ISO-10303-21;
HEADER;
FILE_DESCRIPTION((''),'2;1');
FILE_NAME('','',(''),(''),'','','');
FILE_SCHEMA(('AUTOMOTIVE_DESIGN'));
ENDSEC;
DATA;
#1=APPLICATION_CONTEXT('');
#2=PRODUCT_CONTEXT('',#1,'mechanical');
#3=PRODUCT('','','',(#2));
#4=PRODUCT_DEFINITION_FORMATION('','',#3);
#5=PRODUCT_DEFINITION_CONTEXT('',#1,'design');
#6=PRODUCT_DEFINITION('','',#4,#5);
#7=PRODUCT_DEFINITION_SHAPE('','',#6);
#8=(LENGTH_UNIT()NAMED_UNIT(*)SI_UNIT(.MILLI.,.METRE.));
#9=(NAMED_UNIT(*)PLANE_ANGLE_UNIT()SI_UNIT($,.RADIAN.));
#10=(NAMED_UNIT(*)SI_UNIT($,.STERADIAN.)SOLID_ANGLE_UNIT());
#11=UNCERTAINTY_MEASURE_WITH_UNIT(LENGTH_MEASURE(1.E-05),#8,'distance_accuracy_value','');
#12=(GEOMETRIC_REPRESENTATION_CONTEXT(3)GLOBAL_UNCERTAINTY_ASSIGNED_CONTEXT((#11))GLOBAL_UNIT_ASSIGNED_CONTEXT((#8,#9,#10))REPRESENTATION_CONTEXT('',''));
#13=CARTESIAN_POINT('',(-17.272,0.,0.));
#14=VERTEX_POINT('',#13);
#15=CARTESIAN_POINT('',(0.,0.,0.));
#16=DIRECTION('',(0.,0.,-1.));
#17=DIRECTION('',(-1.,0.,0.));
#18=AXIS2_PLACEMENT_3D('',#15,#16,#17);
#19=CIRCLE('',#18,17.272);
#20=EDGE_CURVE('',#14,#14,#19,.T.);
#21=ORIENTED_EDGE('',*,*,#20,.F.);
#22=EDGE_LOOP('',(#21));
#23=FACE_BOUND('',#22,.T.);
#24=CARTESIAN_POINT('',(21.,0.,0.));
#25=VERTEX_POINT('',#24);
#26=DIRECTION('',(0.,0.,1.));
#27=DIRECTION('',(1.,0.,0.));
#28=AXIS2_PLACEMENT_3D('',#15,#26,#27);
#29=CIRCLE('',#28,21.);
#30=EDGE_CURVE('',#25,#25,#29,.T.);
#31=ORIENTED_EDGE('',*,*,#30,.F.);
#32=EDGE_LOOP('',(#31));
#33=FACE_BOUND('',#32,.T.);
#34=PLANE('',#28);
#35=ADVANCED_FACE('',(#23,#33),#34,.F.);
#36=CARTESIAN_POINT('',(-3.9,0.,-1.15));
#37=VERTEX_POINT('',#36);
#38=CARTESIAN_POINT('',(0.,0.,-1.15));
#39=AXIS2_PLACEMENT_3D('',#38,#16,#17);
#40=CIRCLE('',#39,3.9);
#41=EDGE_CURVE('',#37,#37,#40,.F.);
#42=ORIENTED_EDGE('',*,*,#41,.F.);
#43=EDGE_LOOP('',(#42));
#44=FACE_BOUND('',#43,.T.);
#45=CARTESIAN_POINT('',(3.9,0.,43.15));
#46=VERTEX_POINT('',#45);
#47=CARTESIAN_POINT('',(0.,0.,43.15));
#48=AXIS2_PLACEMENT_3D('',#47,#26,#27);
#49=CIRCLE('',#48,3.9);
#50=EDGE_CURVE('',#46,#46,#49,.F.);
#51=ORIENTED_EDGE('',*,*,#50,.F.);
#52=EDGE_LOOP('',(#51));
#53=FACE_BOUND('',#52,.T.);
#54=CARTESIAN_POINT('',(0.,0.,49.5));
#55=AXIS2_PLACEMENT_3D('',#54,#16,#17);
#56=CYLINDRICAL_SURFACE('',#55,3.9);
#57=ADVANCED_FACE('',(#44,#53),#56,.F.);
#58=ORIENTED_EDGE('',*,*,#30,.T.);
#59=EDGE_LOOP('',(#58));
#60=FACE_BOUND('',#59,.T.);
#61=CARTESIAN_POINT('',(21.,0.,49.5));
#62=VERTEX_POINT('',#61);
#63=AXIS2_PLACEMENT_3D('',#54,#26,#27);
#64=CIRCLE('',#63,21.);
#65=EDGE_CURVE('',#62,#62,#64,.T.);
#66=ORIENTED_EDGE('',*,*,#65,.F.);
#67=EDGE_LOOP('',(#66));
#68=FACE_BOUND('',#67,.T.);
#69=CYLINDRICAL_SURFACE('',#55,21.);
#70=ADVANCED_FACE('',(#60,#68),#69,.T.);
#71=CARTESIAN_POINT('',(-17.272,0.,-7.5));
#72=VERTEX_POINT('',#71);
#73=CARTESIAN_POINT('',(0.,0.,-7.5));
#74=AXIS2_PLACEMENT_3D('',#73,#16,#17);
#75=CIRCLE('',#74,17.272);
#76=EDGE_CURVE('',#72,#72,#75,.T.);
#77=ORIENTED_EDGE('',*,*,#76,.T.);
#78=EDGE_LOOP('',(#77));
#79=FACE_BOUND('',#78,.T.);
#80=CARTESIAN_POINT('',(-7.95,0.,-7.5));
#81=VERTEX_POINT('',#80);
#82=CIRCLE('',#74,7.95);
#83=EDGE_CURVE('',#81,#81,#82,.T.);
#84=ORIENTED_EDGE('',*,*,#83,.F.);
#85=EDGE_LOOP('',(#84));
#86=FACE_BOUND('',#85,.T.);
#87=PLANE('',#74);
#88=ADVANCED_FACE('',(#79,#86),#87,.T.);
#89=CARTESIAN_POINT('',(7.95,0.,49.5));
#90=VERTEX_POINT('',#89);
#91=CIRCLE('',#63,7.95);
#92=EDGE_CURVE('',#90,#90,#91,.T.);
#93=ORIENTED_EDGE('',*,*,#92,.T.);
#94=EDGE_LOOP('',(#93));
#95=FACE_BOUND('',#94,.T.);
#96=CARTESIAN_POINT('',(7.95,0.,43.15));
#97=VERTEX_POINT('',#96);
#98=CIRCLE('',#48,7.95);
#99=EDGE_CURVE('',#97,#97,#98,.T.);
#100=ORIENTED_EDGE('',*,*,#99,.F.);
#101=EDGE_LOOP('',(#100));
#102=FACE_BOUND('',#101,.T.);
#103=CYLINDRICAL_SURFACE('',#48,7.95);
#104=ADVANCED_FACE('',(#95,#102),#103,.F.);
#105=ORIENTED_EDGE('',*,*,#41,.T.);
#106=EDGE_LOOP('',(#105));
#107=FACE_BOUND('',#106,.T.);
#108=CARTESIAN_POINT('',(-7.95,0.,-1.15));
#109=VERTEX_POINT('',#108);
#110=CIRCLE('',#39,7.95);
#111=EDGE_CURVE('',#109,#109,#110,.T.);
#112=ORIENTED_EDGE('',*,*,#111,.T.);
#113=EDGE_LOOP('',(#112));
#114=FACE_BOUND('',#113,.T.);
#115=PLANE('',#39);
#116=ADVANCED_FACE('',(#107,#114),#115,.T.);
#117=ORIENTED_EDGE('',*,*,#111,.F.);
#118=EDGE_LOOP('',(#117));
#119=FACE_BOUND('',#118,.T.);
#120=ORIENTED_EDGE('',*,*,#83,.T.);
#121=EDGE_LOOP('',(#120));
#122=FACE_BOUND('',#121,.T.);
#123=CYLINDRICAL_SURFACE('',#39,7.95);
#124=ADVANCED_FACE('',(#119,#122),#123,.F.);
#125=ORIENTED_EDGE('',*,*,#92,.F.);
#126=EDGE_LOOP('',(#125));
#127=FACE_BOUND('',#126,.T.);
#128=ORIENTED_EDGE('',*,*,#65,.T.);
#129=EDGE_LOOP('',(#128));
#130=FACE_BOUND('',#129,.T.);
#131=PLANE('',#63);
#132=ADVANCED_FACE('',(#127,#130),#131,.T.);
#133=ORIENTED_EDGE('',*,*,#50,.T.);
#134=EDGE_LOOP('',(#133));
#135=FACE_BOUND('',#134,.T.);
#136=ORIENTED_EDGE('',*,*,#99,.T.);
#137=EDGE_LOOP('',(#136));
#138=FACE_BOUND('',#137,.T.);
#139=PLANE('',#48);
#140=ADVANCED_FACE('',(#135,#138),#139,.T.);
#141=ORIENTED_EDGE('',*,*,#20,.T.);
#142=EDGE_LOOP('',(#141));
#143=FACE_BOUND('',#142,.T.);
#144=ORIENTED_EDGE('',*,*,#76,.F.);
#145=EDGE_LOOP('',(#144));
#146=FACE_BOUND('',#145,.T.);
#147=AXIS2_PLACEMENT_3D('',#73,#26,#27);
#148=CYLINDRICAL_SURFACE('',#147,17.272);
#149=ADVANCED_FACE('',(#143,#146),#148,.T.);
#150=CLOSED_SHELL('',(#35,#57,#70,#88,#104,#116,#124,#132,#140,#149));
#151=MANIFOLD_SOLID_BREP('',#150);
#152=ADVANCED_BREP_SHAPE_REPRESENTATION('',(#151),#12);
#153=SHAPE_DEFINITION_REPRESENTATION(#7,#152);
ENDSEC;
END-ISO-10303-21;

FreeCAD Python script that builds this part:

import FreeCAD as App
import Part
import Sketcher
Q = App.Units.Quantity

doc = App.newDocument("Part")
body = doc.addObject("PartDesign::Body", "Body")

sketch1 = body.newObject("Sketcher::SketchObject", "Sketch")
sketch1.AttachmentSupport = (doc.getObject("XY_Plane"), [""])
sketch1.MapMode = "FlatFace"
sketch1.addGeometry(Part.Circle(App.Vector(0, 0, 0), App.Vector(0, 0, 1), 21), False)
sketch1.addConstraint(Sketcher.Constraint("Coincident", 0, 3, -1, 1))
sketch1.addConstraint(Sketcher.Constraint("Diameter", 0, Q("42 mm")))
pad1 = body.newObject("PartDesign::Pad", "Pad")
pad1.Profile = sketch1
pad1.Length = 49.5

sketch2 = body.newObject("Sketcher::SketchObject", "Sketch001")
sketch2.AttachmentSupport = (doc.getObject("XY_Plane"), [""])
sketch2.MapMode = "FlatFace"
sketch2.addGeometry(Part.Circle(App.Vector(0, 0, 0), App.Vector(0, 0, 1), 3.9), False)
sketch2.addConstraint(Sketcher.Constraint("Coincident", 0, 3, -1, 1))
sketch2.addConstraint(Sketcher.Constraint("Diameter", 0, Q("7.8 mm")))
pocket1 = body.newObject("PartDesign::Pocket", "Pocket")
pocket1.Profile = sketch2
pocket1.Type = "ThroughAll"
pocket1.Reversed = True

sketch3 = body.newObject("Sketcher::SketchObject", "Sketch002")
sketch3.AttachmentSupport = (doc.getObject("XY_Plane"), [""])
sketch3.MapMode = "FlatFace"
sketch3.addGeometry(Part.Circle(App.Vector(0, 0, 0), App.Vector(0, 0, 1), 17.272), False)
sketch3.addConstraint(Sketcher.Constraint("Coincident", 0, 3, -1, 1))
sketch3.addConstraint(Sketcher.Constraint("Diameter", 0, Q("34.544 mm")))
pad2 = body.newObject("PartDesign::Pad", "Pad001")
pad2.Profile = sketch3
pad2.Length = 7.5
pad2.Reversed = True

sketch4 = body.newObject("Sketcher::SketchObject", "Sketch003")
sketch4.AttachmentSupport = (doc.getObject("XY_Plane"), [""])
sketch4.MapMode = "FlatFace"
sketch4.AttachmentOffset = App.Placement(App.Vector(0, 0, -7.5), App.Rotation())
sketch4.addGeometry(Part.Circle(App.Vector(0, 0, 0), App.Vector(0, 0, 1), 3.9), False)
sketch4.addConstraint(Sketcher.Constraint("Coincident", 0, 3, -1, 1))
sketch4.addConstraint(Sketcher.Constraint("Diameter", 0, Q("7.8 mm")))
pocket2 = body.newObject("PartDesign::Pocket", "Pocket001")
pocket2.Profile = sketch4
pocket2.Length = 7.5
pocket2.Reversed = True

sketch5 = body.newObject("Sketcher::SketchObject", "Sketch004")
sketch5.AttachmentSupport = (doc.getObject("XY_Plane"), [""])
sketch5.MapMode = "FlatFace"
sketch5.AttachmentOffset = App.Placement(App.Vector(0, 0, -7.5), App.Rotation())
sketch5.addGeometry(Part.Circle(App.Vector(0, 0, 0), App.Vector(0, 0, 1), 7.95), False)
sketch5.addConstraint(Sketcher.Constraint("Coincident", 0, 3, -1, 1))
sketch5.addConstraint(Sketcher.Constraint("Diameter", 0, Q("15.9 mm")))
pocket3 = body.newObject("PartDesign::Pocket", "Pocket002")
pocket3.Profile = sketch5
pocket3.Length = 6.35
pocket3.Reversed = True

sketch6 = body.newObject("Sketcher::SketchObject", "Sketch005")
sketch6.AttachmentSupport = (doc.getObject("XY_Plane"), [""])
sketch6.MapMode = "FlatFace"
sketch6.AttachmentOffset = App.Placement(App.Vector(0, 0, 49.5), App.Rotation())
sketch6.addGeometry(Part.Circle(App.Vector(0, 0, 0), App.Vector(0, 0, 1), 7.95), False)
sketch6.addConstraint(Sketcher.Constraint("Coincident", 0, 3, -1, 1))
sketch6.addConstraint(Sketcher.Constraint("Diameter", 0, Q("15.9 mm")))
pocket4 = body.newObject("PartDesign::Pocket", "Pocket003")
pocket4.Profile = sketch6
pocket4.Length = 6.35

doc.recompute()
